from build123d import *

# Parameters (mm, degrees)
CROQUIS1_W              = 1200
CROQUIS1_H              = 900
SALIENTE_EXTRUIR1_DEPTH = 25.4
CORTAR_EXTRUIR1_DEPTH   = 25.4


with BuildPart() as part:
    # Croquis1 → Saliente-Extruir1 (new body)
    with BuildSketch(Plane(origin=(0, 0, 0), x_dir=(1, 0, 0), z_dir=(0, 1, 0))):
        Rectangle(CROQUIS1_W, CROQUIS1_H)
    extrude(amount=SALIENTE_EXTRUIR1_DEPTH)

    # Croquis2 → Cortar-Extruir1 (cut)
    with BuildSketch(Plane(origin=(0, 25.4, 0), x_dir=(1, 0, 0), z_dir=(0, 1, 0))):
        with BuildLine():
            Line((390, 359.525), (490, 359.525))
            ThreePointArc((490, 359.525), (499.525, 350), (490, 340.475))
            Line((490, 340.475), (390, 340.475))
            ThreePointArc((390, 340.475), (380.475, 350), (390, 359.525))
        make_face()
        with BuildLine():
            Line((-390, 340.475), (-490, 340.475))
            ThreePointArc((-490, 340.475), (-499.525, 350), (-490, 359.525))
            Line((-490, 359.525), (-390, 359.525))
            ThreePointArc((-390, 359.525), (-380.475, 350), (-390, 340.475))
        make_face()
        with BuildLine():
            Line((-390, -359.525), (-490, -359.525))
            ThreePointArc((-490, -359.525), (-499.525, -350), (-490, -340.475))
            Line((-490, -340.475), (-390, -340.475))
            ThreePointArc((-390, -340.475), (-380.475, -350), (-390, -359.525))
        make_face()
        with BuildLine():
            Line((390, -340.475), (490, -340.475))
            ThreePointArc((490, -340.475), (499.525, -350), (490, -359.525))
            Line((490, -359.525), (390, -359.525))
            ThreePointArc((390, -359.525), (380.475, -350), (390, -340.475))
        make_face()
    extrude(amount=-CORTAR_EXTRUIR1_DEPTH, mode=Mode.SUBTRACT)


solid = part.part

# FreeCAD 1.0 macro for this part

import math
import FreeCAD as App
import Part
import Sketcher

V = App.Vector


def add_polygon(sketch, points):
    """Adds a closed chain of lines whose ends are joined by coincident constraints."""
    first, n = sketch.GeometryCount, len(points)
    for a, b in zip(points, points[1:] + points[:1]):
        sketch.addGeometry(Part.LineSegment(App.Vector(*a, 0), App.Vector(*b, 0)), False)
    for i in range(n):
        sketch.addConstraint(Sketcher.Constraint("Coincident", first + i, 2, first + (i + 1) % n, 1))

doc = App.newDocument("Part")
params = doc.addObject("Spreadsheet::Sheet", "Params")
for row, (alias, value) in enumerate([
    ("sketch1_width", "1200 mm"),
    ("sketch1_height", "900 mm"),
    ("pad1_length", "25.4 mm"),
    ("sketch2_width", "100 mm"),
    ("pocket1_length", "25.4 mm"),
], start=1):
    params.set(f"A{row}", alias)
    params.set(f"B{row}", "=" + value)
    params.setAlias(f"B{row}", alias)

body = doc.addObject("PartDesign::Body", "Body")

sketch1 = doc.addObject("Sketcher::SketchObject", "Sketch")
body.addObject(sketch1)
sketch1.AttachmentSupport = (doc.XZ_Plane, [""])
sketch1.MapMode = "FlatFace"
add_polygon(sketch1, [(-600, -450), (-600, 450), (600, 450), (600, -450)])
sketch1.addConstraint(Sketcher.Constraint("Vertical", 0))
sketch1.addConstraint(Sketcher.Constraint("Horizontal", 1))
sketch1.addConstraint(Sketcher.Constraint("Vertical", 2))
sketch1.addConstraint(Sketcher.Constraint("Horizontal", 3))
sketch1.addConstraint(Sketcher.Constraint("Symmetric", 0, 2, 2, 2, -1, 1))
sketch1.addConstraint(Sketcher.Constraint("DistanceX", 1, 1, 1, 2, 1200.0))
sketch1.addConstraint(Sketcher.Constraint("DistanceY", 0, 1, 0, 2, 900.0))
sketch1.setExpression("Constraints[9]", "Params.sketch1_width")
sketch1.setExpression("Constraints[10]", "Params.sketch1_height")
pad1 = doc.addObject("PartDesign::Pad", "Pad")
body.addObject(pad1)
pad1.Profile = sketch1
pad1.setExpression("Length", "Params.pad1_length")
pad1.Reversed = True

sketch2 = doc.addObject("Sketcher::SketchObject", "Sketch001")
body.addObject(sketch2)
sketch2.AttachmentSupport = (doc.XZ_Plane, [""])
sketch2.MapMode = "FlatFace"
sketch2.AttachmentOffset = App.Placement(V(0, 0, -25.4), App.Rotation())
sketch2.addGeometry(Part.LineSegment(V(490, -360, 0), V(390, -360, 0)), False)
sketch2.addGeometry(Part.ArcOfCircle(Part.Circle(V(390, -350, 0), V(0, 0, 1), 10), math.radians(90), math.radians(270)), False)
sketch2.addGeometry(Part.LineSegment(V(390, -340, 0), V(490, -340, 0)), False)
sketch2.addGeometry(Part.ArcOfCircle(Part.Circle(V(490, -350, 0), V(0, 0, 1), 10), math.radians(-90), math.radians(90)), False)
sketch2.addGeometry(Part.LineSegment(V(-490, -340, 0), V(-390, -340, 0)), False)
sketch2.addGeometry(Part.ArcOfCircle(Part.Circle(V(-390, -350, 0), V(0, 0, 1), 10), math.radians(-90), math.radians(90)), False)
sketch2.addGeometry(Part.LineSegment(V(-390, -360, 0), V(-490, -360, 0)), False)
sketch2.addGeometry(Part.ArcOfCircle(Part.Circle(V(-490, -350, 0), V(0, 0, 1), 10), math.radians(90), math.radians(270)), False)
sketch2.addGeometry(Part.LineSegment(V(-490, 360, 0), V(-390, 360, 0)), False)
sketch2.addGeometry(Part.ArcOfCircle(Part.Circle(V(-390, 350, 0), V(0, 0, 1), 10), math.radians(-90), math.radians(90)), False)
sketch2.addGeometry(Part.LineSegment(V(-390, 340, 0), V(-490, 340, 0)), False)
sketch2.addGeometry(Part.ArcOfCircle(Part.Circle(V(-490, 350, 0), V(0, 0, 1), 10), math.radians(90), math.radians(270)), False)
sketch2.addGeometry(Part.LineSegment(V(490, 340, 0), V(390, 340, 0)), False)
sketch2.addGeometry(Part.ArcOfCircle(Part.Circle(V(390, 350, 0), V(0, 0, 1), 10), math.radians(90), math.radians(270)), False)
sketch2.addGeometry(Part.LineSegment(V(390, 360, 0), V(490, 360, 0)), False)
sketch2.addGeometry(Part.ArcOfCircle(Part.Circle(V(490, 350, 0), V(0, 0, 1), 10), math.radians(-90), math.radians(90)), False)
sketch2.addConstraint(Sketcher.Constraint("Tangent", 0, 2, 1, 2))
sketch2.addConstraint(Sketcher.Constraint("Tangent", 1, 1, 2, 1))
sketch2.addConstraint(Sketcher.Constraint("Tangent", 2, 2, 3, 2))
sketch2.addConstraint(Sketcher.Constraint("Tangent", 3, 1, 0, 1))
sketch2.addConstraint(Sketcher.Constraint("Tangent", 4, 2, 5, 2))
sketch2.addConstraint(Sketcher.Constraint("Tangent", 5, 1, 6, 1))
sketch2.addConstraint(Sketcher.Constraint("Tangent", 6, 2, 7, 2))
sketch2.addConstraint(Sketcher.Constraint("Tangent", 7, 1, 4, 1))
sketch2.addConstraint(Sketcher.Constraint("Tangent", 8, 2, 9, 2))
sketch2.addConstraint(Sketcher.Constraint("Tangent", 9, 1, 10, 1))
sketch2.addConstraint(Sketcher.Constraint("Tangent", 10, 2, 11, 2))
sketch2.addConstraint(Sketcher.Constraint("Tangent", 11, 1, 8, 1))
sketch2.addConstraint(Sketcher.Constraint("Tangent", 12, 2, 13, 2))
sketch2.addConstraint(Sketcher.Constraint("Tangent", 13, 1, 14, 1))
sketch2.addConstraint(Sketcher.Constraint("Tangent", 14, 2, 15, 2))
sketch2.addConstraint(Sketcher.Constraint("Tangent", 15, 1, 12, 1))
sketch2.addConstraint(Sketcher.Constraint("Horizontal", 0))
sketch2.addConstraint(Sketcher.Constraint("Horizontal", 2))
sketch2.addConstraint(Sketcher.Constraint("Horizontal", 4))
sketch2.addConstraint(Sketcher.Constraint("Horizontal", 6))
sketch2.addConstraint(Sketcher.Constraint("Horizontal", 8))
sketch2.addConstraint(Sketcher.Constraint("Horizontal", 10))
sketch2.addConstraint(Sketcher.Constraint("Horizontal", 12))
sketch2.addConstraint(Sketcher.Constraint("Horizontal", 14))
sketch2.addConstraint(Sketcher.Constraint("Equal", 3, 5))
sketch2.addConstraint(Sketcher.Constraint("Equal", 7, 9))
sketch2.addConstraint(Sketcher.Constraint("Equal", 11, 13))
sketch2.addConstraint(Sketcher.Constraint("Symmetric", 1, 3, 9, 3, -1, 1))
sketch2.addConstraint(Sketcher.Constraint("Symmetric", 5, 3, 13, 3, -1, 1))
sketch2.addConstraint(Sketcher.Constraint("Symmetric", 1, 3, 5, 3, -2))
sketch2.addConstraint(Sketcher.Constraint("Vertical", 7, 3, 11, 3))
sketch2.addConstraint(Sketcher.Constraint("Vertical", 3, 3, 15, 3))
sketch2.addConstraint(Sketcher.Constraint("Equal", 2, 4))
sketch2.addConstraint(Sketcher.Constraint("DistanceX", 0, 2, 0, 1, 100.0))
sketch2.addConstraint(Sketcher.Constraint("DistanceX", -1, 1, 1, 3, 390.0))
sketch2.addConstraint(Sketcher.Constraint("DistanceY", 1, 3, -1, 1, 350.0))
sketch2.addConstraint(Sketcher.Constraint("Radius", 1, 9.525))
sketch2.setExpression("Constraints[33]", "Params.sketch2_width")
pocket1 = doc.addObject("PartDesign::Pocket", "Pocket")
body.addObject(pocket1)
pocket1.Profile = sketch2
pocket1.setExpression("Length", "Params.pocket1_length")
pocket1.Reversed = True

doc.recompute()
